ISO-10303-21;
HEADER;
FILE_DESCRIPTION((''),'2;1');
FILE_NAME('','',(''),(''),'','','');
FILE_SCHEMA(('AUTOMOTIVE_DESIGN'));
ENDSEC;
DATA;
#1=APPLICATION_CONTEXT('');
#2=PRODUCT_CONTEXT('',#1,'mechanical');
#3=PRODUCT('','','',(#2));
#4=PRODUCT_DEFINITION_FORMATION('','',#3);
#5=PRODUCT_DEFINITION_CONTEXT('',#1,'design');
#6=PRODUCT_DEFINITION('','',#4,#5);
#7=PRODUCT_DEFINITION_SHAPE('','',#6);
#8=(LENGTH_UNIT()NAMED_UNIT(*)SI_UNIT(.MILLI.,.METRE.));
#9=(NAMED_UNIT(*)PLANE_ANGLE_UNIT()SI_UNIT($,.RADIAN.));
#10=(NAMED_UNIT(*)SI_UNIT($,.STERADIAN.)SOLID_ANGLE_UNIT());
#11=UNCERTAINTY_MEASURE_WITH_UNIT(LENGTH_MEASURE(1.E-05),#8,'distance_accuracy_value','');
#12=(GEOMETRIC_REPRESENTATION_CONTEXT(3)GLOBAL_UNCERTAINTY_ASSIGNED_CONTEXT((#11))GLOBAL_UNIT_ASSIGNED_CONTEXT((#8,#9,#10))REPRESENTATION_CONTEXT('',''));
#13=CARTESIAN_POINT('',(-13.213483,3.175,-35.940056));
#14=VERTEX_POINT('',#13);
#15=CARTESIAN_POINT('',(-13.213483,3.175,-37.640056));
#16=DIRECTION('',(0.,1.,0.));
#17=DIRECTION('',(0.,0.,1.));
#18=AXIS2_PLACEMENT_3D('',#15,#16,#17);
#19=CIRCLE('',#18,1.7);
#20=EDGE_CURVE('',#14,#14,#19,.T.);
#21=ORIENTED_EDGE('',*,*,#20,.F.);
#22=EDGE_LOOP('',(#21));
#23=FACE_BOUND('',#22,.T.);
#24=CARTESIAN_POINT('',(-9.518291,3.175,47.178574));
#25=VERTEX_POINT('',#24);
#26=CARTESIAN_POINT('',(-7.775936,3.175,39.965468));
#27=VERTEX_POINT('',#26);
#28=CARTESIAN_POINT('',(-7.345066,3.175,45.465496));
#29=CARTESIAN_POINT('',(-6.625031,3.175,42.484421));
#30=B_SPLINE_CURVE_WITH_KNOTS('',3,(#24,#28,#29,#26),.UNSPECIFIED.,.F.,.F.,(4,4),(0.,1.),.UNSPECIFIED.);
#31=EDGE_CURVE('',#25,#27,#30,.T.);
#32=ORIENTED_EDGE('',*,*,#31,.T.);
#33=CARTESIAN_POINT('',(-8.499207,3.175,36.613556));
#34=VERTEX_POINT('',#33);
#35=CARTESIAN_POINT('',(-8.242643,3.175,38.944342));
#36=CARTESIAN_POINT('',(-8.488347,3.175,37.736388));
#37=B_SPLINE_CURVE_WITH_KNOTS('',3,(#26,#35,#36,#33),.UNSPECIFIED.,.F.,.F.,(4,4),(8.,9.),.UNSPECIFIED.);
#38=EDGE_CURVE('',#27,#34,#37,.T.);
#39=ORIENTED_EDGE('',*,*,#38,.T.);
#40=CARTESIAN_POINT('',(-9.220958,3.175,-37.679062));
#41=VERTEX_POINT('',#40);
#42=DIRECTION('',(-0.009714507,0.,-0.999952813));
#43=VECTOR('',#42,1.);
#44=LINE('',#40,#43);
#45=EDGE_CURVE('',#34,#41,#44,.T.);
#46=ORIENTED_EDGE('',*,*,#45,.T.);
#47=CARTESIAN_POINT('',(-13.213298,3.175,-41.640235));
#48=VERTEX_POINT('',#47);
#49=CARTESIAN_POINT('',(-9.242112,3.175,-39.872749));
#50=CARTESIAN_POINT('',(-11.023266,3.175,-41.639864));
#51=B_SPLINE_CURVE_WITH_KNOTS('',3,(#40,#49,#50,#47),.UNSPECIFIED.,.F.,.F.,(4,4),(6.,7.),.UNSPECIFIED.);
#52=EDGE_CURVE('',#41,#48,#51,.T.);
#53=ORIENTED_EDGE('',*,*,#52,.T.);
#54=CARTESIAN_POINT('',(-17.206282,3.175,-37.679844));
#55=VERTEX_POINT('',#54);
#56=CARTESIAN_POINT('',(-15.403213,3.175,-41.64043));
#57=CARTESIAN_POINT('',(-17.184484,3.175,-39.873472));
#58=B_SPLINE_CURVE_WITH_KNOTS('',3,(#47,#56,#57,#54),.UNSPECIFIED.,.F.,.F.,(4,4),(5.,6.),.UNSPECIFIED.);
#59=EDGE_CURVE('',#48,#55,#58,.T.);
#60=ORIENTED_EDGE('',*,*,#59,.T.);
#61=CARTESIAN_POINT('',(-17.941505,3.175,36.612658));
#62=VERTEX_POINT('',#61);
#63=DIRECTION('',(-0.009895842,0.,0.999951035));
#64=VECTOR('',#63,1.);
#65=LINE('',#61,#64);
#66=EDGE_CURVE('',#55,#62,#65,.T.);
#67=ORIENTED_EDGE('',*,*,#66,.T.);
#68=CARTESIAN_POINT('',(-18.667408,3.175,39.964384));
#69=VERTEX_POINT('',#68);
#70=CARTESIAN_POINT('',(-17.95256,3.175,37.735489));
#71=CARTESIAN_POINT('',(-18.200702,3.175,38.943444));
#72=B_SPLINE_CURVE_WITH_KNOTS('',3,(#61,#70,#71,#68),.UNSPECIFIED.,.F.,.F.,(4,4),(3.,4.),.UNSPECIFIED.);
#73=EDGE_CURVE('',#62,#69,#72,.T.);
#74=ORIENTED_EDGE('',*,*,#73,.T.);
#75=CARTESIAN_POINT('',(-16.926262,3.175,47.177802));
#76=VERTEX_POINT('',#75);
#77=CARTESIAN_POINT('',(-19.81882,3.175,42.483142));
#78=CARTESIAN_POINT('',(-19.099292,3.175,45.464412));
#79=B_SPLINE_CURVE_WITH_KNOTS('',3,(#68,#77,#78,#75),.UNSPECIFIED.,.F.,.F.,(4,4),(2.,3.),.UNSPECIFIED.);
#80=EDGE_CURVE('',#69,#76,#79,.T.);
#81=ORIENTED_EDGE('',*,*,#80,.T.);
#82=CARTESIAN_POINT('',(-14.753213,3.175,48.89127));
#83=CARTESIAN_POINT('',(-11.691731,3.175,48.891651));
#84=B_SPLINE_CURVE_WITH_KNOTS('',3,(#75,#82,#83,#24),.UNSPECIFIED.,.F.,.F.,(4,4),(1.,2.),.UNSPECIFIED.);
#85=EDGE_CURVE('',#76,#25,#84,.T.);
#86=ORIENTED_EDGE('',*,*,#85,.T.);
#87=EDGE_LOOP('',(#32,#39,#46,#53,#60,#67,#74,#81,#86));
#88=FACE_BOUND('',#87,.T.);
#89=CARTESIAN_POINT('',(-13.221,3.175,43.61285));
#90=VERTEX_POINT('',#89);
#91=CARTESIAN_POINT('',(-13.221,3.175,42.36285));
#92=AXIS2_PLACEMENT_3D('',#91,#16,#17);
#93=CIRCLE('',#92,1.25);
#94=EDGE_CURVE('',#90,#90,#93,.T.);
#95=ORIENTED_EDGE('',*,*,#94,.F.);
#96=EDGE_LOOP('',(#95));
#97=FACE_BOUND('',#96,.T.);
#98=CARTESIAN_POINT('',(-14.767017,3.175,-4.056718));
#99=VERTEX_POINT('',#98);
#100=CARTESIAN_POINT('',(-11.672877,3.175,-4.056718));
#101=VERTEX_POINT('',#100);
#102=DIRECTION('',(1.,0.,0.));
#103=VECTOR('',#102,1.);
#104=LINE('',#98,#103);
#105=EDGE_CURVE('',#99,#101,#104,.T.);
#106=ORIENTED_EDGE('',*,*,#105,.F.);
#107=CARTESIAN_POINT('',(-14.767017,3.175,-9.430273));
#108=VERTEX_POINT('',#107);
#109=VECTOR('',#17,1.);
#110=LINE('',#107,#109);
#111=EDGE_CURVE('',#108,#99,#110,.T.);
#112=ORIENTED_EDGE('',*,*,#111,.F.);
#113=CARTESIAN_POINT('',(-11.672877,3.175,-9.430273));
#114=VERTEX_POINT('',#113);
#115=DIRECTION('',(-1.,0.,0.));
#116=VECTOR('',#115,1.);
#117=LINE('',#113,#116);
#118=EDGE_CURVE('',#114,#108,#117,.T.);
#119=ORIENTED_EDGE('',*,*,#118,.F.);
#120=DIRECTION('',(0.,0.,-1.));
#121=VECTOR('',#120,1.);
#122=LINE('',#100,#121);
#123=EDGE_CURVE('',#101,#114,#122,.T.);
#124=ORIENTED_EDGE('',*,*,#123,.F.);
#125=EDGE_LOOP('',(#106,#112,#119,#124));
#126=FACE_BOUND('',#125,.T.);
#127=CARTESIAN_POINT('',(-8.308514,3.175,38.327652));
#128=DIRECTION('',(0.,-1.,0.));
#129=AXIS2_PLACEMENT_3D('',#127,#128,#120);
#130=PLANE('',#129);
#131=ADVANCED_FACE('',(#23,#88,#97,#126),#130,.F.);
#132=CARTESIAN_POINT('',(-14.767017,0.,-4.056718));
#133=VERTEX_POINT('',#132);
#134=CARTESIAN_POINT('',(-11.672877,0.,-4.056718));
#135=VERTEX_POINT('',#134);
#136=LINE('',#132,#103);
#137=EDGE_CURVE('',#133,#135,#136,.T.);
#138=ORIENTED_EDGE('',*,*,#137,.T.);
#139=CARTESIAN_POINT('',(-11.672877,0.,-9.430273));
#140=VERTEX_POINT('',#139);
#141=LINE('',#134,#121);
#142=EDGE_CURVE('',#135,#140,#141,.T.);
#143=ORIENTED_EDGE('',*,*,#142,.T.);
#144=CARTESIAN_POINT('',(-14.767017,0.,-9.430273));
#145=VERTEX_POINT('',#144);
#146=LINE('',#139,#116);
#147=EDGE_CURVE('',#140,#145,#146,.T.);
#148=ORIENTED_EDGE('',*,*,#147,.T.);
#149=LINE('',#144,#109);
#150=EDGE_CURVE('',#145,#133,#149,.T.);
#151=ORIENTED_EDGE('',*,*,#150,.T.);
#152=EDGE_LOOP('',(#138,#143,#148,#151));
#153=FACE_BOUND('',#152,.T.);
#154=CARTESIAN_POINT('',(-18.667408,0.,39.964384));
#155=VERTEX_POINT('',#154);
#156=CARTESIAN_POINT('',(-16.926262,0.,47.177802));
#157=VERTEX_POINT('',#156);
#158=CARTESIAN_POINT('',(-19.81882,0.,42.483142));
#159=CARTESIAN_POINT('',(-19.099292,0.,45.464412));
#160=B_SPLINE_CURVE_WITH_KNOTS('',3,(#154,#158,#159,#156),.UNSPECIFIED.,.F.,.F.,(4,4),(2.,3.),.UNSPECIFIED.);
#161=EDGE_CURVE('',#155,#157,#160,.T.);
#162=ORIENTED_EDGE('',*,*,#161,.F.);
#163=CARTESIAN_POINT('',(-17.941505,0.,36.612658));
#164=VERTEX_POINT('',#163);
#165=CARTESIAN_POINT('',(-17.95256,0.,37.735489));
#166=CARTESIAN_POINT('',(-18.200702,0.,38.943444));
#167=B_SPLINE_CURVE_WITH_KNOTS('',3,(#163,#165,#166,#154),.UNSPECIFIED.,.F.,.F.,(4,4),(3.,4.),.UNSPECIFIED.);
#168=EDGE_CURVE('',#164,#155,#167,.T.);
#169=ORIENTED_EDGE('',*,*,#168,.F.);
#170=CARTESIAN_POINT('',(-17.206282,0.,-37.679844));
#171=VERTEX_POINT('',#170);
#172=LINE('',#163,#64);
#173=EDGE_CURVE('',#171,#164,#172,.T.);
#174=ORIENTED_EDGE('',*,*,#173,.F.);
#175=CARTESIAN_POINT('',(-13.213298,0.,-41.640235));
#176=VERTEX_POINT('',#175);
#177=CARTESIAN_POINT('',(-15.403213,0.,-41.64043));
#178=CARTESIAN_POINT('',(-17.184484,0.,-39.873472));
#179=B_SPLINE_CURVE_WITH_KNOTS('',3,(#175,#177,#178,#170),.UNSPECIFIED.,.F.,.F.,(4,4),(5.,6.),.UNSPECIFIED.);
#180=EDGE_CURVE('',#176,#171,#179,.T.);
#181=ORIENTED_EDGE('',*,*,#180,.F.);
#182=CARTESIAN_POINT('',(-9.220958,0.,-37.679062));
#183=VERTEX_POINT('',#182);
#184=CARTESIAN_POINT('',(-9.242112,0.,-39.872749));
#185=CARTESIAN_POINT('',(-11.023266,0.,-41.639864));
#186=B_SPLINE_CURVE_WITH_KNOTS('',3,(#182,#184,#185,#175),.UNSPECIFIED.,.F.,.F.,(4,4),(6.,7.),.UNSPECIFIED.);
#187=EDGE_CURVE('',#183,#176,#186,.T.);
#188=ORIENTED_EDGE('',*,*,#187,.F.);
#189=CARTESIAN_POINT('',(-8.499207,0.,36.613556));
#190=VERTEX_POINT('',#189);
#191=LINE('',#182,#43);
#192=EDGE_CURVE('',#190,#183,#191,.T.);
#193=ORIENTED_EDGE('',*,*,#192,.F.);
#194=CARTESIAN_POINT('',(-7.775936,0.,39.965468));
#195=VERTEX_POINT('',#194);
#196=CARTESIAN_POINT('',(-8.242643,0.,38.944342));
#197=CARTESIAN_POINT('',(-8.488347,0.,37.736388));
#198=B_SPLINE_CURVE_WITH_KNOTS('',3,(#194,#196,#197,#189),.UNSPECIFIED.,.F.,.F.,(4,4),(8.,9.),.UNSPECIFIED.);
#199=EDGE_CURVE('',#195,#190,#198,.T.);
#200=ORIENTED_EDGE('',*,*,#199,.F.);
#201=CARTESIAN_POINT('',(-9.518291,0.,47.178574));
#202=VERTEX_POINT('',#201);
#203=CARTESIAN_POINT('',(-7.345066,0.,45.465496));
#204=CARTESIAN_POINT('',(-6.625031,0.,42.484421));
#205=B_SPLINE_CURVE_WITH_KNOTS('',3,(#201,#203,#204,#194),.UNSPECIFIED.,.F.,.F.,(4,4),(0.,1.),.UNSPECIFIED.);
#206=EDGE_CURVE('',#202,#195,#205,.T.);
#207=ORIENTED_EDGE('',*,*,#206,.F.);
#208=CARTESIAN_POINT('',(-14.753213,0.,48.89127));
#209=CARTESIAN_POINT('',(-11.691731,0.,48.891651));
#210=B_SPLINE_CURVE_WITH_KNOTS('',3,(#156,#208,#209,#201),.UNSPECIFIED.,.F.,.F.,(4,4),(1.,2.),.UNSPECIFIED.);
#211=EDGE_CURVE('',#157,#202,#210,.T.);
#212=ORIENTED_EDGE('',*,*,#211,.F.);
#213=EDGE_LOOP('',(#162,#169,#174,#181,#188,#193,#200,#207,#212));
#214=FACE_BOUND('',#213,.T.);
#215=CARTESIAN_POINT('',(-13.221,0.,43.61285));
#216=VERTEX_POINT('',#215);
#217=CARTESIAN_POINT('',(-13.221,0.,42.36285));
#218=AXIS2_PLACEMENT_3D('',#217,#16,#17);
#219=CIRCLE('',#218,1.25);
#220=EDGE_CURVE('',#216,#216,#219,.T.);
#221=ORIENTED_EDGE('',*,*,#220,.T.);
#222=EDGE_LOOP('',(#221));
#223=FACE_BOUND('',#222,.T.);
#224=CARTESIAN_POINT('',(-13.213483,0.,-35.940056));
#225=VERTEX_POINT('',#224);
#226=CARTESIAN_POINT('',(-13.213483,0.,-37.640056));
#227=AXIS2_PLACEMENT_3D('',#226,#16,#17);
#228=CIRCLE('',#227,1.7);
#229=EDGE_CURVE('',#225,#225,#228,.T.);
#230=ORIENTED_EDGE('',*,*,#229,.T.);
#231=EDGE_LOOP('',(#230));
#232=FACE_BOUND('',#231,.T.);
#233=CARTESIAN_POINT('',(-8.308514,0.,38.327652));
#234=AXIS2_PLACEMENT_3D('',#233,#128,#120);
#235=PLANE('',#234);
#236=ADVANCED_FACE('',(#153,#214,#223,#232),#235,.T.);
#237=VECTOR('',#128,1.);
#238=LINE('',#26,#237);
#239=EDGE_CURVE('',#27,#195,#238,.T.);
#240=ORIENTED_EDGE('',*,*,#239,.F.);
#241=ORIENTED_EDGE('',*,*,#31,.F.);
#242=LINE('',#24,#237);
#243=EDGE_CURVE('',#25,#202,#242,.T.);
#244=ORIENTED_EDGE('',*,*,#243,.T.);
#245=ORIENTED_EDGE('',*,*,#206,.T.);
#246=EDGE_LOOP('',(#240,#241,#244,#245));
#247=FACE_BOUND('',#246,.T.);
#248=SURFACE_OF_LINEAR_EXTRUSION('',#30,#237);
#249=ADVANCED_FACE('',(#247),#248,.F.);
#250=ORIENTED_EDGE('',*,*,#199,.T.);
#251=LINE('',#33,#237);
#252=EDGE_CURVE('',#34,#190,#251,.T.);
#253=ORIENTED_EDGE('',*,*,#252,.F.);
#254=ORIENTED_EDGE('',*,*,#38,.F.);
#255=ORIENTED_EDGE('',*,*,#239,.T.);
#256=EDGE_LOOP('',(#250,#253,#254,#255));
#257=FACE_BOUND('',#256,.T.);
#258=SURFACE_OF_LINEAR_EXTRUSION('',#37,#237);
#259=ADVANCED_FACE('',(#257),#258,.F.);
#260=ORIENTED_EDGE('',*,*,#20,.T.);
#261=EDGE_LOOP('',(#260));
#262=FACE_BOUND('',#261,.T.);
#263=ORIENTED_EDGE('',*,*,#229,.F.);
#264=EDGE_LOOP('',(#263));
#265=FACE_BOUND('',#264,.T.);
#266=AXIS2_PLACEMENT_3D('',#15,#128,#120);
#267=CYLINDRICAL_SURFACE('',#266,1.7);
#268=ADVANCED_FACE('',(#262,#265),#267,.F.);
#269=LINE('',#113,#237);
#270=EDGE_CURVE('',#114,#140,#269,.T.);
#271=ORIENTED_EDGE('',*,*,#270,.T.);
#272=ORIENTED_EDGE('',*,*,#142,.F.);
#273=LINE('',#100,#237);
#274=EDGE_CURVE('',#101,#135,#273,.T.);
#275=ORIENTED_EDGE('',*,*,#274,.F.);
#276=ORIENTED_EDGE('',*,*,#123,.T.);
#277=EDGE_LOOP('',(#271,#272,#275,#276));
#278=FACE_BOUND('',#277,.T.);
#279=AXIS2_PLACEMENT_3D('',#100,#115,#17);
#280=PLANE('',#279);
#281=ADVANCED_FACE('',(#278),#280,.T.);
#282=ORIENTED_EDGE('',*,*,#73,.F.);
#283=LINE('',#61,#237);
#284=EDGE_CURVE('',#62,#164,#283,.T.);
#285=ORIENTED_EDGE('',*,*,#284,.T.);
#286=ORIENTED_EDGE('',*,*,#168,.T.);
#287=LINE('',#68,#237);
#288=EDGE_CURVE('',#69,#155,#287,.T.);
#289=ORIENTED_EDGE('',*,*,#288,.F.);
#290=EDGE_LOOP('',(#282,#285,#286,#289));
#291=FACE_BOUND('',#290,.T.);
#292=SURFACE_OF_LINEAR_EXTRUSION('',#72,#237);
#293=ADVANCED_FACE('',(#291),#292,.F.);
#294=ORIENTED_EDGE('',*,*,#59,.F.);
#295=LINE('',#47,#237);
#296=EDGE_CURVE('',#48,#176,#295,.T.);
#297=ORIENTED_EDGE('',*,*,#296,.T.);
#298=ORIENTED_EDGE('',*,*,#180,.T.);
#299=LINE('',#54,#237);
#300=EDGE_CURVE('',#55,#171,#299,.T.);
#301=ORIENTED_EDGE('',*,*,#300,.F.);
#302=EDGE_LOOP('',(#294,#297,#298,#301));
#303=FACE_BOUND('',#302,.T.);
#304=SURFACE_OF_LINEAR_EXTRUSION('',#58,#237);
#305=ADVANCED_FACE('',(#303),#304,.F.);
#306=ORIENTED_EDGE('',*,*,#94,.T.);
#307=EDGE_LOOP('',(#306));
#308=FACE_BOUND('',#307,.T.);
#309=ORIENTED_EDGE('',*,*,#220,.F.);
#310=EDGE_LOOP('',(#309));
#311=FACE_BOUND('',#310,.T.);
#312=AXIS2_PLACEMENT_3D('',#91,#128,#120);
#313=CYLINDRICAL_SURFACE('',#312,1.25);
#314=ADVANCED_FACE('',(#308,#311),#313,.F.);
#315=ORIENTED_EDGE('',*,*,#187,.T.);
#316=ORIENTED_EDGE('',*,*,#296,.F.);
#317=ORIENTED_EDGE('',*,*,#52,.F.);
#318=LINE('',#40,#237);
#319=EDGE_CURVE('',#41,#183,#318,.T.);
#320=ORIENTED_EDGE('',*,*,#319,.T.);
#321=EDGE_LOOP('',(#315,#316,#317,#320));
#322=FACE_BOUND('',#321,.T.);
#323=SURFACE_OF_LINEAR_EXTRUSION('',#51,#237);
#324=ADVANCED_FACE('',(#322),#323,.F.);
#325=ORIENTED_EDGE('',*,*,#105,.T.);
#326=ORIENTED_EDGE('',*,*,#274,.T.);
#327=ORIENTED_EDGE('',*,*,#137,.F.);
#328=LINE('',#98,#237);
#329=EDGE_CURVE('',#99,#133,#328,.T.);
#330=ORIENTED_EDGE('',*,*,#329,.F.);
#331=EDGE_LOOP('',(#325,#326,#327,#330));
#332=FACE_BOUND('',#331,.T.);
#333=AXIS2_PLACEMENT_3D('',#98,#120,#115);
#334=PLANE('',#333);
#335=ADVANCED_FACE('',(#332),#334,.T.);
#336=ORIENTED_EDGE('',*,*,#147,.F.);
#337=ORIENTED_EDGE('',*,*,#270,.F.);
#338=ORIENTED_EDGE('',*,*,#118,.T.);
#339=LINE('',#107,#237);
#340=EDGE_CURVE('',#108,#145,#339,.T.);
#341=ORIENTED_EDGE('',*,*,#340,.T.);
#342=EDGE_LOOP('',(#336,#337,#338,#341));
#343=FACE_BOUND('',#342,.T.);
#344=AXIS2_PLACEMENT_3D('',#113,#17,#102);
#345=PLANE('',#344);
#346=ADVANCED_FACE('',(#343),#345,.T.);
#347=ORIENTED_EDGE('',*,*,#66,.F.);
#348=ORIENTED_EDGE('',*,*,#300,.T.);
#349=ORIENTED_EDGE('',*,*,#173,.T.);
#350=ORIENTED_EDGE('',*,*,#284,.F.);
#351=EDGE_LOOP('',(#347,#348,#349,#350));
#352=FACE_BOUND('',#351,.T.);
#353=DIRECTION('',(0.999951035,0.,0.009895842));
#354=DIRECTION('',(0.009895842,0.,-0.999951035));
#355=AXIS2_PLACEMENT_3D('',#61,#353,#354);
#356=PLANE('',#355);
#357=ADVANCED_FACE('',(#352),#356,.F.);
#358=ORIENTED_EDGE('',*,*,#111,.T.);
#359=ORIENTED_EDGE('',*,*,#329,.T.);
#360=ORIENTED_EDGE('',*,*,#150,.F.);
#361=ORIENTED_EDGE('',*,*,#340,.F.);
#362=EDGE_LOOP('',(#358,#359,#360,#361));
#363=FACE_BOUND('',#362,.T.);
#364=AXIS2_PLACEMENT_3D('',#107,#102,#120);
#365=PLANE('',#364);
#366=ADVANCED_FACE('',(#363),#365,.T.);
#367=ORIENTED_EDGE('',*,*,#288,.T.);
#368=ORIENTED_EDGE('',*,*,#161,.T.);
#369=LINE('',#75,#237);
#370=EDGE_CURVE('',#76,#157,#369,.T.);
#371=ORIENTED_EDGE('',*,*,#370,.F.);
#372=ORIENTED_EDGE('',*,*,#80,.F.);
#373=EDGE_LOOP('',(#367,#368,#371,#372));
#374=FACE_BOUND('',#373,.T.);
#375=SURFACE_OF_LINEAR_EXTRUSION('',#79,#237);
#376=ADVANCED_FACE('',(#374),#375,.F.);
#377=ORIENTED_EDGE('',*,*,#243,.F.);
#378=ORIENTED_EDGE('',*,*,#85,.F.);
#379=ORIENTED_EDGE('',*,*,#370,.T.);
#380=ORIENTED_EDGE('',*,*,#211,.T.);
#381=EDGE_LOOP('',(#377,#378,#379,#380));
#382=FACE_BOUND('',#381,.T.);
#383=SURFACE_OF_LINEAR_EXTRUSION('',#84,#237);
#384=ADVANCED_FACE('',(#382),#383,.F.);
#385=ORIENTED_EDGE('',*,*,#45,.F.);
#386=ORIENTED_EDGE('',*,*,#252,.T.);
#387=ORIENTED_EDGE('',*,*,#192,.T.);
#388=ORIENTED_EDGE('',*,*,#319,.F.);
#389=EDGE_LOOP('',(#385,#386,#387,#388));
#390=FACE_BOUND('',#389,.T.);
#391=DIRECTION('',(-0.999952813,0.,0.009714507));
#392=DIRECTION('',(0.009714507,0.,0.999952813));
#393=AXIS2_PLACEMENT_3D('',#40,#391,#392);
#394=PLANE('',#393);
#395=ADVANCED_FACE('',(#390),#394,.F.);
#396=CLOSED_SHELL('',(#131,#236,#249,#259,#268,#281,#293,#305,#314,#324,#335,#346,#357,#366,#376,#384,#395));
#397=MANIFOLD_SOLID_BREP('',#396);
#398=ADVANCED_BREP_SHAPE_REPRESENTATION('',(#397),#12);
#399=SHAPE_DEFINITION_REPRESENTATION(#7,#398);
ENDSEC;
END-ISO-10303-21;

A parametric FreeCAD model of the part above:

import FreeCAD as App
import Part
import Sketcher

V = App.Vector
Q = App.Units.Quantity

doc = App.newDocument("Part")
body = doc.addObject("PartDesign::Body", "Body")

# Sketch on XZ plane
sketch1 = body.newObject("Sketcher::SketchObject", "Sketch")
sketch1.AttachmentSupport = (doc.getObject("XZ_Plane"), [""])
sketch1.MapMode = "FlatFace"
sketch1.addGeometry(Part.LineSegment(V(-17.206282, -37.679844, 0), V(-17.941505, 36.612658, 0)), False)
sketch1.addGeometry(Part.BSplineCurve([V(-18.667408, 39.964384, 0), V(-18.200702, 38.943444, 0), V(-17.95256, 37.735489, 0), V(-17.941505, 36.612658, 0)], [4, 4], [3, 4], False, 3, [1, 1, 1, 1], False), False)
sketch1.addGeometry(Part.BSplineCurve([V(-16.926262, 47.177802, 0), V(-19.099292, 45.464412, 0), V(-19.81882, 42.483142, 0), V(-18.667408, 39.964384, 0)], [4, 4], [2, 3], False, 3, [1, 1, 1, 1], False), False)
sketch1.addGeometry(Part.BSplineCurve([V(-9.518291, 47.178574, 0), V(-11.691731, 48.891651, 0), V(-14.753213, 48.89127, 0), V(-16.926262, 47.177802, 0)], [4, 4], [1, 2], False, 3, [1, 1, 1, 1], False), False)
sketch1.addGeometry(Part.BSplineCurve([V(-7.775936, 39.965468, 0), V(-6.625031, 42.484421, 0), V(-7.345066, 45.465496, 0), V(-9.518291, 47.178574, 0)], [4, 4], [0, 1], False, 3, [1, 1, 1, 1], False), False)
sketch1.addGeometry(Part.BSplineCurve([V(-8.499207, 36.613556, 0), V(-8.488347, 37.736388, 0), V(-8.242643, 38.944342, 0), V(-7.775936, 39.965468, 0)], [4, 4], [8, 9], False, 3, [1, 1, 1, 1], False), False)
sketch1.addGeometry(Part.LineSegment(V(-8.499207, 36.613556, 0), V(-9.220958, -37.679062, 0)), False)
sketch1.addGeometry(Part.BSplineCurve([V(-13.213298, -41.640235, 0), V(-11.023266, -41.639864, 0), V(-9.242112, -39.872749, 0), V(-9.220958, -37.679062, 0)], [4, 4], [6, 7], False, 3, [1, 1, 1, 1], False), False)
sketch1.addGeometry(Part.BSplineCurve([V(-17.206282, -37.679844, 0), V(-17.184484, -39.873472, 0), V(-15.403213, -41.64043, 0), V(-13.213298, -41.640235, 0)], [4, 4], [5, 6], False, 3, [1, 1, 1, 1], False), False)
sketch1.addGeometry(Part.Circle(V(-13.221, 42.36285, 0), V(0, 0, 1), 1.25), False)
sketch1.addGeometry(Part.LineSegment(V(-14.767017, -4.056718, 0), V(-14.767017, -9.430273, 0)), False)
sketch1.addGeometry(Part.LineSegment(V(-14.767017, -9.430273, 0), V(-11.672877, -9.430273, 0)), False)
sketch1.addGeometry(Part.LineSegment(V(-11.672877, -9.430273, 0), V(-11.672877, -4.056718, 0)), False)
sketch1.addGeometry(Part.LineSegment(V(-11.672877, -4.056718, 0), V(-14.767017, -4.056718, 0)), False)
sketch1.addGeometry(Part.Circle(V(-13.213483, -37.640056, 0), V(0, 0, 1), 1.7), False)
sketch1.addConstraint(Sketcher.Constraint("Block", 1))
sketch1.addConstraint(Sketcher.Constraint("Block", 2))
sketch1.addConstraint(Sketcher.Constraint("Block", 3))
sketch1.addConstraint(Sketcher.Constraint("Block", 4))
sketch1.addConstraint(Sketcher.Constraint("Block", 5))
sketch1.addConstraint(Sketcher.Constraint("Block", 7))
sketch1.addConstraint(Sketcher.Constraint("Block", 8))
sketch1.addConstraint(Sketcher.Constraint("Coincident", 0, 2, 1, 2))
sketch1.addConstraint(Sketcher.Constraint("Coincident", 5, 1, 6, 1))
sketch1.addConstraint(Sketcher.Constraint("Coincident", 6, 2, 7, 2))
sketch1.addConstraint(Sketcher.Constraint("Coincident", 8, 1, 0, 1))
sketch1.addConstraint(Sketcher.Constraint("Coincident", 10, 2, 11, 1))
sketch1.addConstraint(Sketcher.Constraint("Coincident", 11, 2, 12, 1))
sketch1.addConstraint(Sketcher.Constraint("Coincident", 12, 2, 13, 1))
sketch1.addConstraint(Sketcher.Constraint("Coincident", 13, 2, 10, 1))
sketch1.addConstraint(Sketcher.Constraint("Vertical", 10))
sketch1.addConstraint(Sketcher.Constraint("Horizontal", 11))
sketch1.addConstraint(Sketcher.Constraint("Vertical", 12))
sketch1.addConstraint(Sketcher.Constraint("Horizontal", 13))
sketch1.addConstraint(Sketcher.Constraint("Diameter", 9, Q("2.5 mm")))
sketch1.addConstraint(Sketcher.Constraint("Diameter", 14, Q("3.4 mm")))
sketch1.addConstraint(Sketcher.Constraint("DistanceX", 9, 3, -1, 1, Q("13.221 mm")))
sketch1.addConstraint(Sketcher.Constraint("DistanceX", 11, 1, 11, 2, Q("3.09414 mm")))
sketch1.addConstraint(Sketcher.Constraint("DistanceY", 10, 2, 10, 1, Q("5.373555 mm")))
sketch1.addConstraint(Sketcher.Constraint("DistanceY", -1, 1, 9, 3, Q("42.36285 mm")))
sketch1.addConstraint(Sketcher.Constraint("DistanceX", 0, 2, 14, 3, Q("4.728022 mm")))
sketch1.addConstraint(Sketcher.Constraint("DistanceX", 10, 2, 6, 2, Q("5.546059 mm")))
sketch1.addConstraint(Sketcher.Constraint("DistanceY", 6, 2, 10, 2, Q("28.24879 mm")))
sketch1.addConstraint(Sketcher.Constraint("DistanceY", 14, 3, 12, 2, Q("33.583338 mm")))
pad1 = body.newObject("PartDesign::Pad", "Pad")
pad1.Profile = sketch1
pad1.Length = 3.175
pad1.Reversed = True

doc.recompute()
